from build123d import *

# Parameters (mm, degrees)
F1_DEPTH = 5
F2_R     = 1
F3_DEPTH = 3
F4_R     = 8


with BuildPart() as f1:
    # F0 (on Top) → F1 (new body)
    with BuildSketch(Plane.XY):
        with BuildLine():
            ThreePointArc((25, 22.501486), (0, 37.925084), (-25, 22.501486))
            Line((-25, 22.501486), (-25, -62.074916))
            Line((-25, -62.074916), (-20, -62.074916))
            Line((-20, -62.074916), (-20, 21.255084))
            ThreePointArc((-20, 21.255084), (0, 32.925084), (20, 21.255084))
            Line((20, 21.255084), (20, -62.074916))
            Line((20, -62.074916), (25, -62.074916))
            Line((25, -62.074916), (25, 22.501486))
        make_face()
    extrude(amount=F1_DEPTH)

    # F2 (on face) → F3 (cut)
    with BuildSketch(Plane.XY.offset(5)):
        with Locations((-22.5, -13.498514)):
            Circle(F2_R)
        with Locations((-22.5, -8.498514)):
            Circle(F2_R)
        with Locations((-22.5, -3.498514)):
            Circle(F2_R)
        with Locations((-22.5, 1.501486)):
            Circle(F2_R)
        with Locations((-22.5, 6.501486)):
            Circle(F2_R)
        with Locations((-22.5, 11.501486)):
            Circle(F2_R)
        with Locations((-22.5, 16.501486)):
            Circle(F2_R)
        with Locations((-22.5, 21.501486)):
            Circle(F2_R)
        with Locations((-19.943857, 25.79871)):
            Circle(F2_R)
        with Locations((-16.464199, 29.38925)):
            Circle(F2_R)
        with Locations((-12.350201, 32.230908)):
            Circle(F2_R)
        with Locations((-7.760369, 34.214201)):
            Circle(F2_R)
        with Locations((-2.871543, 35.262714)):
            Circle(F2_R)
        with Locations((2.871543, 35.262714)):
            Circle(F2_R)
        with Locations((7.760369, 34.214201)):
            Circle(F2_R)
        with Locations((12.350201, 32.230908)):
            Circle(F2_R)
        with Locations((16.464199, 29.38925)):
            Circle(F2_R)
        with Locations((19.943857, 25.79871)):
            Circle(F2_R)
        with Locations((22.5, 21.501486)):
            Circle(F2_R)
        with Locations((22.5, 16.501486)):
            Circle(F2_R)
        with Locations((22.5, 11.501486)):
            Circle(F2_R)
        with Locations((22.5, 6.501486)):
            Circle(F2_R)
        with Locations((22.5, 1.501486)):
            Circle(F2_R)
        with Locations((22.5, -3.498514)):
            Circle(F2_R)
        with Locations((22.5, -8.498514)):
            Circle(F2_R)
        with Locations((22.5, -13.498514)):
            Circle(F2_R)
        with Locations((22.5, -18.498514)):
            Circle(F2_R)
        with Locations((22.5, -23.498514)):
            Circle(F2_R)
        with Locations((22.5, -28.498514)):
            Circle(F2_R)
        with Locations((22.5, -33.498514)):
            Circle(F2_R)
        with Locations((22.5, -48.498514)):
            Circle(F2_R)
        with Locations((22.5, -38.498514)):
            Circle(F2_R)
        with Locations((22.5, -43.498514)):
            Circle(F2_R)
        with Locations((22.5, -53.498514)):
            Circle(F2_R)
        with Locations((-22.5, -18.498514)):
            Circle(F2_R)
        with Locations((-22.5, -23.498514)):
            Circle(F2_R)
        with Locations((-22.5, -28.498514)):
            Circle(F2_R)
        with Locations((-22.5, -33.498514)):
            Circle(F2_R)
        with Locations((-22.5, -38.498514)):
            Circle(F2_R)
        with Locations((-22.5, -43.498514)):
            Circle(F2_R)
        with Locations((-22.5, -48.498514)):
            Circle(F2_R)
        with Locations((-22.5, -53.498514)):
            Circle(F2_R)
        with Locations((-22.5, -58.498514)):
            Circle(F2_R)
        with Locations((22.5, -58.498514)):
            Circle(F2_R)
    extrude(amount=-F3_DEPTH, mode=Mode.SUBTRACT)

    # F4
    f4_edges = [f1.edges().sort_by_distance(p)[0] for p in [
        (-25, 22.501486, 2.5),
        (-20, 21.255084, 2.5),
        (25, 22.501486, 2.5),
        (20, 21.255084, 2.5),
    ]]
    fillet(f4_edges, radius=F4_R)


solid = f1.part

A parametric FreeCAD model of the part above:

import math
import FreeCAD as App
import Part
import Sketcher
from FreeCAD import Vector


def edges_at(feature, points):
    """Names of the edges that pass closest to the given points."""
    edges = feature.Shape.Edges
    near = lambda p: min(range(len(edges)), key=lambda i: edges[i].distToShape(Part.Vertex(*p))[0])
    return sorted({f"Edge{near(p) + 1}" for p in points})

doc = App.newDocument("Part")
body = doc.addObject("PartDesign::Body", "Body")

sketch1 = body.newObject("Sketcher::SketchObject", "Sketch")
sketch1.AttachmentSupport = (doc.getObject("XY_Plane"), [""])
sketch1.MapMode = "FlatFace"
sketch1.addGeometry([
    Part.ArcOfCircle(Part.Circle(Vector(0, 9.952124, 0), Vector(0, 0, 1), 27.97296), math.radians(26.655483), math.radians(153.344517)),
    Part.LineSegment(Vector(-25, 22.501486, 0), Vector(-25, -62.074916, 0)),
    Part.LineSegment(Vector(-25, -62.074916, 0), Vector(-20, -62.074916, 0)),
    Part.LineSegment(Vector(-20, -62.074916, 0), Vector(-20, 21.255084, 0)),
    Part.ArcOfCircle(Part.Circle(Vector(0, 9.952123, 0), Vector(0, 0, 1), 22.972961), math.radians(29.472877), math.radians(150.527123)),
    Part.LineSegment(Vector(20, 21.255084, 0), Vector(20, -62.074916, 0)),
    Part.LineSegment(Vector(20, -62.074916, 0), Vector(25, -62.074916, 0)),
    Part.LineSegment(Vector(25, -62.074916, 0), Vector(25, 22.501486, 0)),
], False)
sketch1.addConstraint([
    Sketcher.Constraint("Coincident", 0, 2, 1, 1),
    Sketcher.Constraint("Coincident", 1, 2, 2, 1),
    Sketcher.Constraint("Coincident", 2, 2, 3, 1),
    Sketcher.Constraint("Coincident", 3, 2, 4, 2),
    Sketcher.Constraint("Coincident", 4, 1, 5, 1),
    Sketcher.Constraint("Coincident", 5, 2, 6, 1),
    Sketcher.Constraint("Coincident", 6, 2, 7, 1),
    Sketcher.Constraint("Coincident", 7, 2, 0, 1),
    Sketcher.Constraint("Vertical", 1),
    Sketcher.Constraint("Horizontal", 2),
    Sketcher.Constraint("Vertical", 3),
    Sketcher.Constraint("Vertical", 5),
    Sketcher.Constraint("Horizontal", 6),
    Sketcher.Constraint("Vertical", 7),
    Sketcher.Constraint("Coincident", 4, 3, 0, 3),
    Sketcher.Constraint("Symmetric", 3, 2, 4, 1, -2),
    Sketcher.Constraint("Symmetric", 1, 2, 6, 2, -2),
    Sketcher.Constraint("DistanceX", 2, 1, 2, 2, 5.0),
    Sketcher.Constraint("DistanceX", 0, 2, -1, 1, 25.0),
    Sketcher.Constraint("DistanceY", 3, 1, 3, 2, 83.33),
    Sketcher.Constraint("Radius", 0, 27.97296),
    Sketcher.Constraint("Radius", 4, 22.972961),
    Sketcher.Constraint("DistanceY", -1, 1, 0, 3, 9.952124),
])
pad1 = body.newObject("PartDesign::Pad", "Pad")
pad1.Profile = sketch1
pad1.Length = 5

sketch2 = body.newObject("Sketcher::SketchObject", "Sketch001")
sketch2.AttachmentSupport = (doc.getObject("XY_Plane"), [""])
sketch2.MapMode = "FlatFace"
sketch2.AttachmentOffset = App.Placement(Vector(0, 0, 5), App.Rotation())
sketch2.addGeometry([
    Part.Circle(Vector(-22.5, -13.498514, 0), Vector(0, 0, 1), 1),
    Part.Circle(Vector(-22.5, -8.498514, 0), Vector(0, 0, 1), 1),
    Part.Circle(Vector(-22.5, -3.498514, 0), Vector(0, 0, 1), 1),
    Part.Circle(Vector(-22.5, 1.501486, 0), Vector(0, 0, 1), 1),
    Part.Circle(Vector(-22.5, 6.501486, 0), Vector(0, 0, 1), 1),
    Part.Circle(Vector(-22.5, 11.501486, 0), Vector(0, 0, 1), 1),
    Part.Circle(Vector(-22.5, 16.501486, 0), Vector(0, 0, 1), 1),
    Part.Circle(Vector(-22.5, 21.501486, 0), Vector(0, 0, 1), 1),
    Part.Circle(Vector(-19.943857, 25.79871, 0), Vector(0, 0, 1), 1),
    Part.Circle(Vector(-16.464199, 29.38925, 0), Vector(0, 0, 1), 1),
    Part.Circle(Vector(-12.350201, 32.230908, 0), Vector(0, 0, 1), 1),
    Part.Circle(Vector(-7.760369, 34.214201, 0), Vector(0, 0, 1), 1),
    Part.Circle(Vector(-2.871543, 35.262714, 0), Vector(0, 0, 1), 1),
    Part.Circle(Vector(2.871543, 35.262714, 0), Vector(0, 0, 1), 1),
    Part.Circle(Vector(7.760369, 34.214201, 0), Vector(0, 0, 1), 1),
    Part.Circle(Vector(12.350201, 32.230908, 0), Vector(0, 0, 1), 1),
    Part.Circle(Vector(16.464199, 29.38925, 0), Vector(0, 0, 1), 1),
    Part.Circle(Vector(19.943857, 25.79871, 0), Vector(0, 0, 1), 1),
    Part.Circle(Vector(22.5, 21.501486, 0), Vector(0, 0, 1), 1),
    Part.Circle(Vector(22.5, 16.501486, 0), Vector(0, 0, 1), 1),
    Part.Circle(Vector(22.5, 11.501486, 0), Vector(0, 0, 1), 1),
    Part.Circle(Vector(22.5, 6.501486, 0), Vector(0, 0, 1), 1),
    Part.Circle(Vector(22.5, 1.501486, 0), Vector(0, 0, 1), 1),
    Part.Circle(Vector(22.5, -3.498514, 0), Vector(0, 0, 1), 1),
    Part.Circle(Vector(22.5, -8.498514, 0), Vector(0, 0, 1), 1),
    Part.Circle(Vector(22.5, -13.498514, 0), Vector(0, 0, 1), 1),
    Part.Circle(Vector(22.5, -18.498514, 0), Vector(0, 0, 1), 1),
    Part.Circle(Vector(22.5, -23.498514, 0), Vector(0, 0, 1), 1),
    Part.Circle(Vector(22.5, -28.498514, 0), Vector(0, 0, 1), 1),
    Part.Circle(Vector(22.5, -33.498514, 0), Vector(0, 0, 1), 1),
    Part.Circle(Vector(22.5, -48.498514, 0), Vector(0, 0, 1), 1),
    Part.Circle(Vector(22.5, -38.498514, 0), Vector(0, 0, 1), 1),
    Part.Circle(Vector(22.5, -43.498514, 0), Vector(0, 0, 1), 1),
    Part.Circle(Vector(22.5, -53.498514, 0), Vector(0, 0, 1), 1),
    Part.Circle(Vector(-22.5, -18.498514, 0), Vector(0, 0, 1), 1),
    Part.Circle(Vector(-22.5, -23.498514, 0), Vector(0, 0, 1), 1),
    Part.Circle(Vector(-22.5, -28.498514, 0), Vector(0, 0, 1), 1),
    Part.Circle(Vector(-22.5, -33.498514, 0), Vector(0, 0, 1), 1),
    Part.Circle(Vector(-22.5, -38.498514, 0), Vector(0, 0, 1), 1),
    Part.Circle(Vector(-22.5, -43.498514, 0), Vector(0, 0, 1), 1),
    Part.Circle(Vector(-22.5, -48.498514, 0), Vector(0, 0, 1), 1),
    Part.Circle(Vector(-22.5, -53.498514, 0), Vector(0, 0, 1), 1),
    Part.Circle(Vector(-22.5, -58.498514, 0), Vector(0, 0, 1), 1),
    Part.Circle(Vector(22.5, -58.498514, 0), Vector(0, 0, 1), 1),
], False)
sketch2.addConstraint([
    Sketcher.Constraint("Equal", 0, 1),
    Sketcher.Constraint("Equal", 1, 2),
    Sketcher.Constraint("Equal", 2, 3),
    Sketcher.Constraint("Equal", 3, 4),
    Sketcher.Constraint("Equal", 4, 5),
    Sketcher.Constraint("Equal", 5, 6),
    Sketcher.Constraint("Equal", 6, 7),
    Sketcher.Constraint("Equal", 7, 8),
    Sketcher.Constraint("Equal", 8, 9),
    Sketcher.Constraint("Equal", 9, 10),
    Sketcher.Constraint("Equal", 10, 11),
    Sketcher.Constraint("Equal", 11, 12),
    Sketcher.Constraint("Equal", 12, 13),
    Sketcher.Constraint("Equal", 13, 14),
    Sketcher.Constraint("Equal", 14, 15),
    Sketcher.Constraint("Equal", 15, 16),
    Sketcher.Constraint("Equal", 16, 17),
    Sketcher.Constraint("Equal", 17, 18),
    Sketcher.Constraint("Equal", 18, 19),
    Sketcher.Constraint("Equal", 19, 20),
    Sketcher.Constraint("Equal", 20, 21),
    Sketcher.Constraint("Equal", 21, 22),
    Sketcher.Constraint("Equal", 22, 23),
    Sketcher.Constraint("Equal", 23, 24),
    Sketcher.Constraint("Equal", 24, 25),
    Sketcher.Constraint("Equal", 25, 26),
    Sketcher.Constraint("Equal", 26, 27),
    Sketcher.Constraint("Equal", 27, 28),
    Sketcher.Constraint("Equal", 28, 29),
    Sketcher.Constraint("Equal", 29, 30),
    Sketcher.Constraint("Equal", 30, 31),
    Sketcher.Constraint("Equal", 31, 32),
    Sketcher.Constraint("Equal", 32, 33),
    Sketcher.Constraint("Equal", 33, 34),
    Sketcher.Constraint("Equal", 34, 35),
    Sketcher.Constraint("Equal", 35, 36),
    Sketcher.Constraint("Equal", 36, 37),
    Sketcher.Constraint("Equal", 37, 38),
    Sketcher.Constraint("Equal", 38, 39),
    Sketcher.Constraint("Equal", 39, 40),
    Sketcher.Constraint("Equal", 40, 41),
    Sketcher.Constraint("Equal", 41, 42),
    Sketcher.Constraint("Equal", 42, 43),
    Sketcher.Constraint("Symmetric", 12, 3, 13, 3, -2),
    Sketcher.Constraint("Symmetric", 11, 3, 14, 3, -2),
    Sketcher.Constraint("Symmetric", 10, 3, 15, 3, -2),
    Sketcher.Constraint("Symmetric", 9, 3, 16, 3, -2),
    Sketcher.Constraint("Symmetric", 8, 3, 17, 3, -2),
    Sketcher.Constraint("Symmetric", 7, 3, 18, 3, -2),
    Sketcher.Constraint("Symmetric", 6, 3, 19, 3, -2),
    Sketcher.Constraint("Symmetric", 5, 3, 20, 3, -2),
    Sketcher.Constraint("Symmetric", 4, 3, 21, 3, -2),
    Sketcher.Constraint("Symmetric", 3, 3, 22, 3, -2),
    Sketcher.Constraint("Symmetric", 2, 3, 23, 3, -2),
    Sketcher.Constraint("Symmetric", 1, 3, 24, 3, -2),
    Sketcher.Constraint("Symmetric", 0, 3, 25, 3, -2),
    Sketcher.Constraint("Symmetric", 26, 3, 34, 3, -2),
    Sketcher.Constraint("Symmetric", 27, 3, 35, 3, -2),
    Sketcher.Constraint("Symmetric", 28, 3, 36, 3, -2),
    Sketcher.Constraint("Symmetric", 29, 3, 37, 3, -2),
    Sketcher.Constraint("Symmetric", 31, 3, 38, 3, -2),
    Sketcher.Constraint("Symmetric", 32, 3, 39, 3, -2),
    Sketcher.Constraint("Symmetric", 30, 3, 40, 3, -2),
    Sketcher.Constraint("Symmetric", 33, 3, 41, 3, -2),
    Sketcher.Constraint("Symmetric", 42, 3, 43, 3, -2),
    Sketcher.Constraint("Vertical", 0, 3, 1, 3),
    Sketcher.Constraint("Vertical", 1, 3, 2, 3),
    Sketcher.Constraint("Vertical", 2, 3, 3, 3),
    Sketcher.Constraint("Vertical", 3, 3, 4, 3),
    Sketcher.Constraint("Vertical", 4, 3, 5, 3),
    Sketcher.Constraint("Vertical", 5, 3, 6, 3),
    Sketcher.Constraint("Vertical", 6, 3, 7, 3),
    Sketcher.Constraint("Vertical", 25, 3, 26, 3),
    Sketcher.Constraint("Vertical", 26, 3, 27, 3),
    Sketcher.Constraint("Vertical", 27, 3, 28, 3),
    Sketcher.Constraint("Vertical", 28, 3, 29, 3),
    Sketcher.Constraint("Vertical", 29, 3, 30, 3),
    Sketcher.Constraint("Vertical", 30, 3, 31, 3),
    Sketcher.Constraint("Vertical", 31, 3, 32, 3),
    Sketcher.Constraint("Vertical", 32, 3, 33, 3),
    Sketcher.Constraint("Vertical", 41, 3, 42, 3),
    Sketcher.Constraint("Diameter", 0, 2.0),
    Sketcher.Constraint("DistanceY", 0, 3, 1, 3, 5.0),
    Sketcher.Constraint("DistanceY", 1, 3, 2, 3, 5.0),
    Sketcher.Constraint("DistanceY", 2, 3, 3, 3, 5.0),
    Sketcher.Constraint("DistanceY", 3, 3, 4, 3, 5.0),
    Sketcher.Constraint("DistanceY", 4, 3, 5, 3, 5.0),
    Sketcher.Constraint("DistanceY", 5, 3, 6, 3, 5.0),
    Sketcher.Constraint("DistanceY", 6, 3, 7, 3, 5.0),
    Sketcher.Constraint("DistanceY", 26, 3, 25, 3, 5.0),
    Sketcher.Constraint("DistanceY", 27, 3, 26, 3, 5.0),
    Sketcher.Constraint("DistanceY", 28, 3, 27, 3, 5.0),
    Sketcher.Constraint("DistanceY", 29, 3, 28, 3, 5.0),
    Sketcher.Constraint("DistanceY", 30, 3, 29, 3, 15.0),
    Sketcher.Constraint("DistanceY", 31, 3, 29, 3, 5.0),
    Sketcher.Constraint("DistanceY", 30, 3, 32, 3, 5.0),
    Sketcher.Constraint("DistanceY", 33, 3, 30, 3, 5.0),
    Sketcher.Constraint("DistanceY", 42, 3, 41, 3, 5.0),
    Sketcher.Constraint("DistanceX", 0, 3, -1, 1, 22.5),
    Sketcher.Constraint("DistanceX", 9, 3, 10, 3, 4.113998),
    Sketcher.Constraint("DistanceX", 9, 3, -1, 1, 16.464199),
    Sketcher.Constraint("DistanceY", -1, 1, 11, 3, 34.214201),
    Sketcher.Constraint("DistanceX", 8, 3, 13, 3, 22.8154),
    Sketcher.Constraint("DistanceY", -1, 1, 8, 3, 25.79871),
    Sketcher.Constraint("DistanceY", -1, 1, 9, 3, 29.38925),
    Sketcher.Constraint("DistanceX", 11, 3, -1, 1, 7.760369),
    Sketcher.Constraint("DistanceX", 8, 3, 9, 3, 3.479658),
    Sketcher.Constraint("DistanceY", 5, 3, 10, 3, 20.729422),
    Sketcher.Constraint("DistanceY", 7, 3, 12, 3, 13.761228),
    Sketcher.Constraint("DistanceY", 0, 3, -1, 1, 13.498514),
])
pocket1 = body.newObject("PartDesign::Pocket", "Pocket")
pocket1.Profile = sketch2
pocket1.Length = 3
doc.recompute()

fillet = body.newObject("PartDesign::Fillet", "Fillet")
fillet.Base = (pocket1, edges_at(pocket1, [
    (-25, 22.501, 2.5),
    (-20, 21.255, 2.5),
    (25, 22.501, 2.5),
    (20, 21.255, 2.5),
]))
fillet.Radius = 8

doc.recompute()
